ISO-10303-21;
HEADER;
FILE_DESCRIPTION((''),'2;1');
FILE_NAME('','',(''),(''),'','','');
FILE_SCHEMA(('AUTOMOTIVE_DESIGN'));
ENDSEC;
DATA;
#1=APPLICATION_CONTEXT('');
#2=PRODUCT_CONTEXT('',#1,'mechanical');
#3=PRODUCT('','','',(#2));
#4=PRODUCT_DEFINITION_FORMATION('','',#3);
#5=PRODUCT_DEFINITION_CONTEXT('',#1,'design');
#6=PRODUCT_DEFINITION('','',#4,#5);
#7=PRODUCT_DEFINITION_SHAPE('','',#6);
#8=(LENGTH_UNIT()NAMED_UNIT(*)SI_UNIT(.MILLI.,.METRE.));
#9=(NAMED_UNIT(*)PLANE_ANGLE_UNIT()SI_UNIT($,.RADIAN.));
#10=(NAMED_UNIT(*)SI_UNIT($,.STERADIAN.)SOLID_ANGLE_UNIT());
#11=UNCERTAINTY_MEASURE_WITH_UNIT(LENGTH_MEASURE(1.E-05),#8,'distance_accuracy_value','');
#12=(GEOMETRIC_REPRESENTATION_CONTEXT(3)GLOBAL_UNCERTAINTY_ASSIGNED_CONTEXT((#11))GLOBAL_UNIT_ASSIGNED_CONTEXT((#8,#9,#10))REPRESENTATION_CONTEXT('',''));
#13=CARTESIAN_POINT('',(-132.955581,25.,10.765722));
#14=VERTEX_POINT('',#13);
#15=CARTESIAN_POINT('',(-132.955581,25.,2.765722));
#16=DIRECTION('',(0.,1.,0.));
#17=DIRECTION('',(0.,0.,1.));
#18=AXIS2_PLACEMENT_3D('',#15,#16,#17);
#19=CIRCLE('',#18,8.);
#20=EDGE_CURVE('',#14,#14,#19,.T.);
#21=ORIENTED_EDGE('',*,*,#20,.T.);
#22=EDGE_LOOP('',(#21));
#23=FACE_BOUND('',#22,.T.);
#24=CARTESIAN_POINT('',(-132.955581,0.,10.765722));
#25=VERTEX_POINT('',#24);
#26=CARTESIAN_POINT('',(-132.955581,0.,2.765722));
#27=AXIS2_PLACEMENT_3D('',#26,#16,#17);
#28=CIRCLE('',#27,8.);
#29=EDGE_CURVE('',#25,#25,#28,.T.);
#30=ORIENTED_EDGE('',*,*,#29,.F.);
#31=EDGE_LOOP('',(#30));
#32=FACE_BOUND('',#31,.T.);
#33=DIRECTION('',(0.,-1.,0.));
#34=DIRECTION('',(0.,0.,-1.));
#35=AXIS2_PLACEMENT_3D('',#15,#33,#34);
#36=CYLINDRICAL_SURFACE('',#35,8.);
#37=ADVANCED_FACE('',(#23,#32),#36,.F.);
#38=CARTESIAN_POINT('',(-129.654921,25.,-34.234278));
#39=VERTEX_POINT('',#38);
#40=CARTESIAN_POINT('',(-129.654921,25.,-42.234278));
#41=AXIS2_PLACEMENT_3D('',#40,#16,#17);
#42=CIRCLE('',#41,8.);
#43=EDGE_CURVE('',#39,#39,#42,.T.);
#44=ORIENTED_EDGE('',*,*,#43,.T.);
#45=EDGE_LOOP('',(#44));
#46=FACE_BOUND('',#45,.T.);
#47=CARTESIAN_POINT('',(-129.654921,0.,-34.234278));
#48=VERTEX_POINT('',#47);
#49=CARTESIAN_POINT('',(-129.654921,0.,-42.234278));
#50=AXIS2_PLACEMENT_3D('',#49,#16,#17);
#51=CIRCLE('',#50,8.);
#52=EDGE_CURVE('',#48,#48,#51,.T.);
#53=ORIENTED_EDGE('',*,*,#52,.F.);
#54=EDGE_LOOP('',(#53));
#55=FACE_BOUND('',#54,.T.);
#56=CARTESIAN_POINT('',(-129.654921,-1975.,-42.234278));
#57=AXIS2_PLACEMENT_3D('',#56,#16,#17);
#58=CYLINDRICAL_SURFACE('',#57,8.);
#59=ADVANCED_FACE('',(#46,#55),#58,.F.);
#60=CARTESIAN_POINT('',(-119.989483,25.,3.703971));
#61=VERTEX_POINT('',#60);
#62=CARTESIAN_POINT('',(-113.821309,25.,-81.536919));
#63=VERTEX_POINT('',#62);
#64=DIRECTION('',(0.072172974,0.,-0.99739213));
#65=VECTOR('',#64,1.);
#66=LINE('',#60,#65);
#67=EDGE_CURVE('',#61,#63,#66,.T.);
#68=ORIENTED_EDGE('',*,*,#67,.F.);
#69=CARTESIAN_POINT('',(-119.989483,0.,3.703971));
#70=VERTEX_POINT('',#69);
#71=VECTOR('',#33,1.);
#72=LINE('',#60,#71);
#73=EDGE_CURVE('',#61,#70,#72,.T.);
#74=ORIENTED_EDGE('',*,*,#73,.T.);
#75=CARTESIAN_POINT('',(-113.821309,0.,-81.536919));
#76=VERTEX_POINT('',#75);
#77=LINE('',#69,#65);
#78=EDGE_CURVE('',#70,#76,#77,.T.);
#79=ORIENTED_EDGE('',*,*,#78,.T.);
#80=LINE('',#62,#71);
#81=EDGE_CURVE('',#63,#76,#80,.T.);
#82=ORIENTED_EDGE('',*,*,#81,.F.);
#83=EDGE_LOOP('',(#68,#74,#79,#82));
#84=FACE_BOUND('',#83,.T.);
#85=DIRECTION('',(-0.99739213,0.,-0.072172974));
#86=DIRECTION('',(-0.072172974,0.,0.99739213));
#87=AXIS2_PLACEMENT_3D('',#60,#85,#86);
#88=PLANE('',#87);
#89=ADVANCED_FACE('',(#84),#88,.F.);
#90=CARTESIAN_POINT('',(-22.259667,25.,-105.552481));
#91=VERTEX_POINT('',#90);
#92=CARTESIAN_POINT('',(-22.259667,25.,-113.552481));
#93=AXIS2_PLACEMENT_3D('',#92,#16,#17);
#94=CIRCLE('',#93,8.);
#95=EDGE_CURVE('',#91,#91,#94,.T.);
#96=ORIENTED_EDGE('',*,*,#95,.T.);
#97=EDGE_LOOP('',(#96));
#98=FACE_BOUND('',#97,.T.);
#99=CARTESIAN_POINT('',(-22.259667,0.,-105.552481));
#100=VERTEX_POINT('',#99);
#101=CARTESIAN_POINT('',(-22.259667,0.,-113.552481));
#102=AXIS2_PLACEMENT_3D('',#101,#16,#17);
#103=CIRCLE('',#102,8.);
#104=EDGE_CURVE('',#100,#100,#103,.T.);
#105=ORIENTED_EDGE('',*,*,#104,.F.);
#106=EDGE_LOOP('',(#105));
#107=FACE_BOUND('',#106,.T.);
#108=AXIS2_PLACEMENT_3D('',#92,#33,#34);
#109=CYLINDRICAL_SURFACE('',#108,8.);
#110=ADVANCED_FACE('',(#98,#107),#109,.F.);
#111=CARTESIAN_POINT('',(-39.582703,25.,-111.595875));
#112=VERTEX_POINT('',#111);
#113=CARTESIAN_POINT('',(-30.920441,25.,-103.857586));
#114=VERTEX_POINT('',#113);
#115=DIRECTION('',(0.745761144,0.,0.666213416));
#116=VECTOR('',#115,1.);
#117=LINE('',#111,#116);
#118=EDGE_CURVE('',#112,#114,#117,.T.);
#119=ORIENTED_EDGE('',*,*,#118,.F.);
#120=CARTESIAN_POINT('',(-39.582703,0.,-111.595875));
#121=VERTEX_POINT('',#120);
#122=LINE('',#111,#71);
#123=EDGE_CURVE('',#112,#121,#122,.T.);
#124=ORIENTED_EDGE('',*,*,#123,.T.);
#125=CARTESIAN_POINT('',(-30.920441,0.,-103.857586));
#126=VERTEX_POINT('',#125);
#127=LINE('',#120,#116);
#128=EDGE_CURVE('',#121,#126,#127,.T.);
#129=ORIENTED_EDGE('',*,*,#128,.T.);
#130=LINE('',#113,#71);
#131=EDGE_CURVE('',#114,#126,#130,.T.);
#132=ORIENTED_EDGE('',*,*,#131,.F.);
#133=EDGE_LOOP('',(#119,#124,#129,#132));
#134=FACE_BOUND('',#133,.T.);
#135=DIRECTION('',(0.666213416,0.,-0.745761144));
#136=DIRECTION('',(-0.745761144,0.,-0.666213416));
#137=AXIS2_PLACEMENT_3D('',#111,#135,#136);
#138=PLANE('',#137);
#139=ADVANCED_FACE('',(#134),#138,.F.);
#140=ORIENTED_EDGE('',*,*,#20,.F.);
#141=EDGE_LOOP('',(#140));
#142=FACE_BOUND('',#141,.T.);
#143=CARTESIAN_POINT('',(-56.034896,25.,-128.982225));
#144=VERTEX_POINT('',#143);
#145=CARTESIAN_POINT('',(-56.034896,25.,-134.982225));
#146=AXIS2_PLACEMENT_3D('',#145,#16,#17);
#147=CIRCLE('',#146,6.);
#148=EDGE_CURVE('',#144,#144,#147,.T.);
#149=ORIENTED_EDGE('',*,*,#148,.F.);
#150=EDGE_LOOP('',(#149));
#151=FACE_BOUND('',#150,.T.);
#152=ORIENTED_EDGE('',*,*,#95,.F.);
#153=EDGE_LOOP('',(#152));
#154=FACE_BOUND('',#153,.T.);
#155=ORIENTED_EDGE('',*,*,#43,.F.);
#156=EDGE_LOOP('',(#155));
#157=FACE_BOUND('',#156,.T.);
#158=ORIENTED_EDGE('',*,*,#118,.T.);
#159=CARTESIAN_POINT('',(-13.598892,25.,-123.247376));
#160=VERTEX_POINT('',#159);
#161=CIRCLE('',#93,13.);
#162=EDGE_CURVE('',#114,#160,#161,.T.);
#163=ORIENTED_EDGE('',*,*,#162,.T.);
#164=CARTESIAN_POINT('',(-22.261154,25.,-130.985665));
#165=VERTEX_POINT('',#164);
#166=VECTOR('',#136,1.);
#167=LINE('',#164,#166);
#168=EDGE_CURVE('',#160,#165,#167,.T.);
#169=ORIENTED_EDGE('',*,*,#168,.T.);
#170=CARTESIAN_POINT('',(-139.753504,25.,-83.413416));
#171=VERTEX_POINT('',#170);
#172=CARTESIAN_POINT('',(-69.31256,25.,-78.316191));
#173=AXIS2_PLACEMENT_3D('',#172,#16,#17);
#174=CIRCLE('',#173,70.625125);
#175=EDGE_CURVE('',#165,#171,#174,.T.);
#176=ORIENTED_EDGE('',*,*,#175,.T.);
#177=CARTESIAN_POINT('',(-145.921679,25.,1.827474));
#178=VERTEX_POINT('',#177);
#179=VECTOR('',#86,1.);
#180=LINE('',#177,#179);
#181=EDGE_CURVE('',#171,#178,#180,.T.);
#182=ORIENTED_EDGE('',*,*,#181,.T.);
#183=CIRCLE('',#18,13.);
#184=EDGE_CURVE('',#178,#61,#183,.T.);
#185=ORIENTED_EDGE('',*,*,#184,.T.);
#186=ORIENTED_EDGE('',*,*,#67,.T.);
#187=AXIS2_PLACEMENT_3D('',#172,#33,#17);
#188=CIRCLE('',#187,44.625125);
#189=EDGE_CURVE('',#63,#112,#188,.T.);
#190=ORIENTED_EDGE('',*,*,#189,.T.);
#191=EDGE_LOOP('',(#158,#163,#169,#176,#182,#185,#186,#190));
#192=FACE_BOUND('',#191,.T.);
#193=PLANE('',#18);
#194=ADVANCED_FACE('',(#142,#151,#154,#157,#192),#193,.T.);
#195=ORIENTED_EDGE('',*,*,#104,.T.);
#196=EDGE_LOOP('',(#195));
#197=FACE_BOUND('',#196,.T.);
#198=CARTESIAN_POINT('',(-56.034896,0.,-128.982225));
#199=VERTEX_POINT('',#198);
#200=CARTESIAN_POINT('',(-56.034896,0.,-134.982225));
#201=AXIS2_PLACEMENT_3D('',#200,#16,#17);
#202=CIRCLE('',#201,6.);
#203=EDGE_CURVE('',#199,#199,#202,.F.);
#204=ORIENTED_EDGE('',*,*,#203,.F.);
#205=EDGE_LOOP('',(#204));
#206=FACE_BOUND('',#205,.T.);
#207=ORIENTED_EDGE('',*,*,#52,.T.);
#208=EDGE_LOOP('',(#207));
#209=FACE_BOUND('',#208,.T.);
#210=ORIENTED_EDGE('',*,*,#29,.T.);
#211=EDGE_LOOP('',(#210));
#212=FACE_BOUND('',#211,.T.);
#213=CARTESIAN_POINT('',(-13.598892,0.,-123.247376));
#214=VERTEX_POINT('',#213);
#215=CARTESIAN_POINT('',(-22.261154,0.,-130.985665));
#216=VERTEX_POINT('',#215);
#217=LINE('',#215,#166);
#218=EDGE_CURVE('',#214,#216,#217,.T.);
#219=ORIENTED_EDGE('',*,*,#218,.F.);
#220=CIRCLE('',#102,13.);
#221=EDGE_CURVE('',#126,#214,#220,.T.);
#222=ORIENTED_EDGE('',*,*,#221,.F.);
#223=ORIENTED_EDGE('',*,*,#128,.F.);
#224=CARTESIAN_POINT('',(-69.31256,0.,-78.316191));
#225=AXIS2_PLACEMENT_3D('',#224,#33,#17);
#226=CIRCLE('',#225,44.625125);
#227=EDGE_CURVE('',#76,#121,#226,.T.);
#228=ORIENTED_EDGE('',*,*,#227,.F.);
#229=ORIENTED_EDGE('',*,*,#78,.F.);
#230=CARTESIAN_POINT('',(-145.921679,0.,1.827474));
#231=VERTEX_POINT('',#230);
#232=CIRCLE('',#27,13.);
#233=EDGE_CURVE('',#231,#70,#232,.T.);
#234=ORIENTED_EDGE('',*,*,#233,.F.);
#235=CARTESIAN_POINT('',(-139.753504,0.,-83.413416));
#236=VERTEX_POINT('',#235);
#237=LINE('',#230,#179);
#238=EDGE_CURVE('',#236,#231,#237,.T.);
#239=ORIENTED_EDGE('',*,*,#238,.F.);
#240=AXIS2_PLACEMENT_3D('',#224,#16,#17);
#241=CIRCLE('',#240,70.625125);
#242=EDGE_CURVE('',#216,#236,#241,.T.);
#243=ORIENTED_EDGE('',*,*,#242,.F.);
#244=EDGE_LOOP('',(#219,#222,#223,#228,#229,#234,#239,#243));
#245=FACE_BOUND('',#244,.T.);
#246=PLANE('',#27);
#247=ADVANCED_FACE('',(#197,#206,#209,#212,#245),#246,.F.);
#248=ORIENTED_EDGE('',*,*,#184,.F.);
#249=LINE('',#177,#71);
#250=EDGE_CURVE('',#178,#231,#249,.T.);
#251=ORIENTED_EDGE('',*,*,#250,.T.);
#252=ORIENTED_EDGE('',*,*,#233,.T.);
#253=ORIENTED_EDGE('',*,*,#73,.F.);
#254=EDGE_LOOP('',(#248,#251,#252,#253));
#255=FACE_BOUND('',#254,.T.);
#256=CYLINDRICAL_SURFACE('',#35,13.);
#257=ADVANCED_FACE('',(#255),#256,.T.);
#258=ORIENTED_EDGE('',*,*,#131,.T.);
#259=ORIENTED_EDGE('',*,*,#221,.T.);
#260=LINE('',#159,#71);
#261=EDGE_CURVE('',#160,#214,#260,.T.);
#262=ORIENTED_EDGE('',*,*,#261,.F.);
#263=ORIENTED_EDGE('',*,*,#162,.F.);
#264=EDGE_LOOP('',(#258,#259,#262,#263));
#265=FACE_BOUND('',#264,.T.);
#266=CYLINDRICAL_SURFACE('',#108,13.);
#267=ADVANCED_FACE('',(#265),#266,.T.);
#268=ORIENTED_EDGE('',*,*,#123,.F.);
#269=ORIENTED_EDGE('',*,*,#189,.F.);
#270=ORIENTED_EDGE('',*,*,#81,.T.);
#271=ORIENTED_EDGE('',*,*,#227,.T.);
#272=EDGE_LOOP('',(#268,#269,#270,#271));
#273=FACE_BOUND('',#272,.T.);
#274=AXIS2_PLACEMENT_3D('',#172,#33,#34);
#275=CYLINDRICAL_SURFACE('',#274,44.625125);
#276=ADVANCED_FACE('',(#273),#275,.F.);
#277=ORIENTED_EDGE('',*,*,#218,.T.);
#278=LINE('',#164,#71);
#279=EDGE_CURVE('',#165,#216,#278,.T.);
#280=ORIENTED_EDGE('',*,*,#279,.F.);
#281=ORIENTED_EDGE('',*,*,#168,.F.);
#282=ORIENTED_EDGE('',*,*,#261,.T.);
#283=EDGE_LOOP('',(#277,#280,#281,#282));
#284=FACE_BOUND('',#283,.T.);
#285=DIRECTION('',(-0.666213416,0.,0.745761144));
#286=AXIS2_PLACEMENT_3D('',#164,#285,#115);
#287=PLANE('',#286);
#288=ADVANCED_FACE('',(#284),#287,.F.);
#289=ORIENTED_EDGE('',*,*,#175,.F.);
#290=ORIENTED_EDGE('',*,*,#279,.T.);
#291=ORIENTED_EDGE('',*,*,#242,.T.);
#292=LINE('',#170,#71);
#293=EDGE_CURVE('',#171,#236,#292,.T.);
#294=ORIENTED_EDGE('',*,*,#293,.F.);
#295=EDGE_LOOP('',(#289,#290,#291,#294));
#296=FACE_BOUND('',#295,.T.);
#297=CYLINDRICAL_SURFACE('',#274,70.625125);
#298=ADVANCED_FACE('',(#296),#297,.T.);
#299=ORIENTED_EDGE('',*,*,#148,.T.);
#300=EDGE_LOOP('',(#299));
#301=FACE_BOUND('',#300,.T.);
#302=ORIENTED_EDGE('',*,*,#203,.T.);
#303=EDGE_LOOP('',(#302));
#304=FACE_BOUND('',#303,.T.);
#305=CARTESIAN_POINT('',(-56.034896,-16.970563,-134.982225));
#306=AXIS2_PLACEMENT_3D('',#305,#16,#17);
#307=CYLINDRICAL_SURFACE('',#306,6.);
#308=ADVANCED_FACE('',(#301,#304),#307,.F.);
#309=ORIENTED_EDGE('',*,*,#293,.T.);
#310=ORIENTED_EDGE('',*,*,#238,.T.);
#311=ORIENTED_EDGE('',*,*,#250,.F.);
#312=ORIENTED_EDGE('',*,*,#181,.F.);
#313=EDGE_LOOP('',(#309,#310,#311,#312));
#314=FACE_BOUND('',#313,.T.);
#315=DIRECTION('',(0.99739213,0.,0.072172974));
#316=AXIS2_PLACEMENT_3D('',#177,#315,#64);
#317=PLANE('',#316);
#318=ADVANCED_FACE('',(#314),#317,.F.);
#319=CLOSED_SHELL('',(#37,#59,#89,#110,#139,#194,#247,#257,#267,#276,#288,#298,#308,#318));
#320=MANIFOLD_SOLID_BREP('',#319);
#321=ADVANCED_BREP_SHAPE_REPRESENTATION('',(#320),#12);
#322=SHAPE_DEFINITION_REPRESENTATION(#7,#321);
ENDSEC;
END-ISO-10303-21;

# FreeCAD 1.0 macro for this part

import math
import FreeCAD as App
import Part
import Sketcher

doc = App.newDocument("Part")
params = doc.addObject("Spreadsheet::Sheet", "Params")
for row, (alias, value) in enumerate([
    ("sketch1_diameter", "16 mm"),
    ("sketch1_radius", "13 mm"),
    ("pad1_length", "25 mm"),
    ("sketch2_diameter", "12 mm"),
    ("pocket1_length", "25 mm"),
    ("sketch3_diameter", "16 mm"),
    ("pocket2_length", "2000 mm"),
], start=1):
    params.set(f"A{row}", alias)
    params.set(f"B{row}", "=" + value)
    params.setAlias(f"B{row}", alias)

body = doc.addObject("PartDesign::Body", "Body")

# Sketch on XZ plane
sketch1 = body.newObject("Sketcher::SketchObject", "Sketch")
sketch1.AttachmentSupport = (doc.getObject("XZ_Plane"), [""])
sketch1.MapMode = "FlatFace"
sketch1.addGeometry([
    Part.LineSegment(App.Vector(-140, -83, 0), App.Vector(-146, 2, 0)),  # 0
    Part.ArcOfCircle(Part.Circle(App.Vector(-133, 3, 0), App.Vector(0, 0, 1), 13), math.radians(4), math.radians(184)),  # 1
    Part.LineSegment(App.Vector(-120, 4, 0), App.Vector(-114, -82, 0)),  # 2
    Part.ArcOfCircle(Part.Circle(App.Vector(-69, -78, 0), App.Vector(0, 0, 1), 45), math.radians(-176), math.radians(-48)),  # 3
    Part.LineSegment(App.Vector(-40, -112, 0), App.Vector(-31, -104, 0)),  # 4
    Part.ArcOfCircle(Part.Circle(App.Vector(-22, -114, 0), App.Vector(0, 0, 1), 13), math.radians(-48), math.radians(132)),  # 5
    Part.LineSegment(App.Vector(-14, -123, 0), App.Vector(-22, -131, 0)),  # 6
    Part.ArcOfCircle(Part.Circle(App.Vector(-69, -78, 0), App.Vector(0, 0, 1), 71), math.radians(-176), math.radians(-48)),  # 7
    Part.Circle(App.Vector(-133, 3, 0), App.Vector(0, 0, 1), 8),  # 8
    Part.Circle(App.Vector(-22, -114, 0), App.Vector(0, 0, 1), 8),  # 9
], False)
sketch1.addConstraint([
    Sketcher.Constraint("Tangent", 0, 2, 1, 2),
    Sketcher.Constraint("Tangent", 1, 1, 2, 1),
    Sketcher.Constraint("Tangent", 2, 2, 3, 1),
    Sketcher.Constraint("Tangent", 3, 2, 4, 1),
    Sketcher.Constraint("Tangent", 4, 2, 5, 2),
    Sketcher.Constraint("Tangent", 5, 1, 6, 1),
    Sketcher.Constraint("Tangent", 6, 2, 7, 2),
    Sketcher.Constraint("Tangent", 7, 1, 0, 1),
    Sketcher.Constraint("Coincident", 7, 3, 3, 3),
    Sketcher.Constraint("Coincident", 8, 3, 1, 3),
    Sketcher.Constraint("Coincident", 9, 3, 5, 3),
    Sketcher.Constraint("Equal", 1, 5),
    Sketcher.Constraint("Equal", 8, 9),
    Sketcher.Constraint("Parallel", 0, 2),
    Sketcher.Constraint("Diameter", 8, 16.0),
    Sketcher.Constraint("Radius", 1, 13.0),
    Sketcher.Constraint("Radius", 3, 44.625125),
    Sketcher.Constraint("DistanceY", 5, 1, 3, 2, 11.651501),
    Sketcher.Constraint("Distance", 0, 85.463768),
    Sketcher.Constraint("Distance", 4, 11.61533),
    Sketcher.Constraint("DistanceX", 1, 3, -1, 1, 132.955581),
    Sketcher.Constraint("DistanceX", 3, 3, -1, 1, 69.31256),
    Sketcher.Constraint("DistanceY", 3, 3, -1, 1, 78.316191),
])
sketch1.setExpression("Constraints[14]", "Params.sketch1_diameter")
sketch1.setExpression("Constraints[15]", "Params.sketch1_radius")
pad1 = body.newObject("PartDesign::Pad", "Pad")
pad1.Profile = sketch1
pad1.setExpression("Length", "Params.pad1_length")
pad1.Reversed = True

# Sketch on XZ plane
sketch2 = body.newObject("Sketcher::SketchObject", "Sketch001")
sketch2.AttachmentSupport = (doc.getObject("XZ_Plane"), [""])
sketch2.MapMode = "FlatFace"
sketch2.AttachmentOffset = App.Placement(App.Vector(0, 0, -25), App.Rotation())
sketch2.addGeometry(Part.Circle(App.Vector(-56, -135, 0), App.Vector(0, 0, 1), 6), False)
sketch2.addConstraint([
    Sketcher.Constraint("Diameter", 0, 12.0),
    Sketcher.Constraint("DistanceX", 0, 3, -1, 1, 56.034896),
    Sketcher.Constraint("DistanceY", 0, 3, -1, 1, 134.982225),
])
sketch2.setExpression("Constraints[0]", "Params.sketch2_diameter")
pocket1 = body.newObject("PartDesign::Pocket", "Pocket")
pocket1.Profile = sketch2
pocket1.setExpression("Length", "Params.pocket1_length")
pocket1.Reversed = True

# Sketch on XZ plane
sketch3 = body.newObject("Sketcher::SketchObject", "Sketch002")
sketch3.AttachmentSupport = (doc.getObject("XZ_Plane"), [""])
sketch3.MapMode = "FlatFace"
sketch3.AttachmentOffset = App.Placement(App.Vector(0, 0, -25), App.Rotation())
sketch3.addGeometry(Part.Circle(App.Vector(-130, -42, 0), App.Vector(0, 0, 1), 8), False)
sketch3.addConstraint([
    Sketcher.Constraint("Diameter", 0, 16.0),
    Sketcher.Constraint("DistanceX", 0, 3, -1, 1, 129.654921),
    Sketcher.Constraint("DistanceY", 0, 3, -1, 1, 42.234278),
])
sketch3.setExpression("Constraints[0]", "Params.sketch3_diameter")
pocket2 = body.newObject("PartDesign::Pocket", "Pocket001")
pocket2.Profile = sketch3
pocket2.setExpression("Length", "Params.pocket2_length")
pocket2.Reversed = True

doc.recompute()
